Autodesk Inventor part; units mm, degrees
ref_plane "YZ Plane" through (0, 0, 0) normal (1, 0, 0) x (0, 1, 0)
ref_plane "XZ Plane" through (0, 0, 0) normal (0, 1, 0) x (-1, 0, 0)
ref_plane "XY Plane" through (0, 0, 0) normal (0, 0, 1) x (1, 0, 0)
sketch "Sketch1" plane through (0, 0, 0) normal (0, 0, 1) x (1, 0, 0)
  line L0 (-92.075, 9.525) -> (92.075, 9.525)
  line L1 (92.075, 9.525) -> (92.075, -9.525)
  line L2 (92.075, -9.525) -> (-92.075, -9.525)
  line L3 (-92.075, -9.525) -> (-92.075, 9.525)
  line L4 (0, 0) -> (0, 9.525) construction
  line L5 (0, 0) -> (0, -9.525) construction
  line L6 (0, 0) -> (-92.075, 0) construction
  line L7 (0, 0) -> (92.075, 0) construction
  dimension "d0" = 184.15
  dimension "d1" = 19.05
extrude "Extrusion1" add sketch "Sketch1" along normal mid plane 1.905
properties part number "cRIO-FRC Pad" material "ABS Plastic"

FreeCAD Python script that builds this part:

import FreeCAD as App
import Part
import Sketcher

V = App.Vector
Q = App.Units.Quantity

doc = App.newDocument("Part")
params = doc.addObject("Spreadsheet::Sheet", "Params")
for row, (alias, value) in enumerate([
    ("sketch1_width", "7.25 in"),
    ("sketch1_height", "0.75 in"),
    ("pad1_length", "0.075 in"),
], start=1):
    params.set(f"A{row}", alias)
    params.set(f"B{row}", "=" + value)
    params.setAlias(f"B{row}", alias)

body = doc.addObject("PartDesign::Body", "Body")

# Sketch on XY plane
sketch1 = body.newObject("Sketcher::SketchObject", "Sketch")
sketch1.AttachmentSupport = (doc.getObject("XY_Plane"), [""])
sketch1.MapMode = "FlatFace"
sketch1.addGeometry([
    Part.LineSegment(V(92.075, 9.525, 0), V(-92.075, 9.525, 0)),
    Part.LineSegment(V(-92.075, 9.525, 0), V(-92.075, -9.525, 0)),
    Part.LineSegment(V(-92.075, -9.525, 0), V(92.075, -9.525, 0)),
    Part.LineSegment(V(92.075, -9.525, 0), V(92.075, 9.525, 0)),
], False)
sketch1.addConstraint([
    Sketcher.Constraint("Coincident", 0, 2, 1, 1),
    Sketcher.Constraint("Coincident", 1, 2, 2, 1),
    Sketcher.Constraint("Coincident", 2, 2, 3, 1),
    Sketcher.Constraint("Coincident", 3, 2, 0, 1),
    Sketcher.Constraint("Horizontal", 0),
    Sketcher.Constraint("Vertical", 1),
    Sketcher.Constraint("Horizontal", 2),
    Sketcher.Constraint("Vertical", 3),
    Sketcher.Constraint("Symmetric", 0, 2, 2, 2, -1, 1),
    Sketcher.Constraint("DistanceX", 0, 2, 0, 1, Q("7.25 in")),
    Sketcher.Constraint("DistanceY", 1, 2, 1, 1, Q("0.75 in")),
])
sketch1.setExpression("Constraints[9]", "Params.sketch1_width")
sketch1.setExpression("Constraints[10]", "Params.sketch1_height")
pad1 = body.newObject("PartDesign::Pad", "Pad")
pad1.Profile = sketch1
pad1.setExpression("Length", "Params.pad1_length")
pad1.Midplane = True

doc.recompute()
